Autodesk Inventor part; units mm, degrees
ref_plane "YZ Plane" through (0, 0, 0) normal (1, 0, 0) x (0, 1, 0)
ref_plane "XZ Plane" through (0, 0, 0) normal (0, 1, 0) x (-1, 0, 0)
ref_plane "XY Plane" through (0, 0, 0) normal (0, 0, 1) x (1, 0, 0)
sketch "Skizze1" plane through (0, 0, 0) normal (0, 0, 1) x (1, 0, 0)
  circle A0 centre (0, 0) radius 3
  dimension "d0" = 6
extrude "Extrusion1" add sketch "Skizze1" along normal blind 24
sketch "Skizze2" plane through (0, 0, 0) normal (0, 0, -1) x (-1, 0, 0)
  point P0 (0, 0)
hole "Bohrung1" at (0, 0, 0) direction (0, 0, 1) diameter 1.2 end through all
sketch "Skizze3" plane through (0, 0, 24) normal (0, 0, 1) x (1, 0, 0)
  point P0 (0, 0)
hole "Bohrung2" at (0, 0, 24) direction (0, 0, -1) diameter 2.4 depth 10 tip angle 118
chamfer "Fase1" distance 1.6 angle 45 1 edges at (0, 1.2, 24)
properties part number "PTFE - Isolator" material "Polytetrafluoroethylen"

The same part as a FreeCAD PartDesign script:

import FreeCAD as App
import Part
import Sketcher
Q = App.Units.Quantity


def edges_at(feature, points):
    """Names of the edges that pass closest to the given points."""
    edges = feature.Shape.Edges
    near = lambda p: min(range(len(edges)), key=lambda i: edges[i].distToShape(Part.Vertex(*p))[0])
    return sorted({f"Edge{near(p) + 1}" for p in points})

doc = App.newDocument("Part")
params = doc.addObject("Spreadsheet::Sheet", "Params")
for row, (alias, value) in enumerate([
    ("sketch1_diameter", "6 mm"),
    ("pad1_length", "24 mm"),
    ("sketch2_diameter", "1.2 mm"),
    ("hole_diameter", "1.2 mm"),
    ("sketch3_diameter", "2.4 mm"),
    ("hole2_diameter", "2.4 mm"),
    ("hole2_depth", "10 mm"),
    ("chamfer_size", "1.6 mm"),
], start=1):
    params.set(f"A{row}", alias)
    params.set(f"B{row}", "=" + value)
    params.setAlias(f"B{row}", alias)

body = doc.addObject("PartDesign::Body", "Body")

# Sketch on XY plane
sketch1 = body.newObject("Sketcher::SketchObject", "Sketch")
sketch1.AttachmentSupport = (doc.getObject("XY_Plane"), [""])
sketch1.MapMode = "FlatFace"
sketch1.addGeometry(Part.Circle(App.Vector(0, 0, 0), App.Vector(0, 0, 1), 3), False)
sketch1.addConstraint(Sketcher.Constraint("Coincident", 0, 3, -1, 1))
sketch1.addConstraint(Sketcher.Constraint("Diameter", 0, Q("6 mm")))
sketch1.setExpression("Constraints[1]", "Params.sketch1_diameter")
pad1 = body.newObject("PartDesign::Pad", "Pad")
pad1.Profile = sketch1
pad1.setExpression("Length", "Params.pad1_length")

# Sketch on XY plane
sketch2 = body.newObject("Sketcher::SketchObject", "Sketch001")
sketch2.AttachmentSupport = (doc.getObject("XY_Plane"), [""])
sketch2.MapMode = "FlatFace"
sketch2.addGeometry(Part.Circle(App.Vector(0, 0, 0), App.Vector(0, 0, 1), 0.6), False)
sketch2.addConstraint(Sketcher.Constraint("Coincident", 0, 3, -1, 1))
sketch2.addConstraint(Sketcher.Constraint("Diameter", 0, Q("1.2 mm")))
sketch2.setExpression("Constraints[1]", "Params.sketch2_diameter")
doc.recompute()
hole = body.newObject("PartDesign::Hole", "Hole")
hole.Profile = sketch2
hole.ThreadType = "None"
hole.setExpression("Diameter", "Params.hole_diameter")
hole.DepthType = "ThroughAll"
hole.Reversed = True

# Sketch on XY plane
sketch3 = body.newObject("Sketcher::SketchObject", "Sketch002")
sketch3.AttachmentSupport = (doc.getObject("XY_Plane"), [""])
sketch3.MapMode = "FlatFace"
sketch3.AttachmentOffset = App.Placement(App.Vector(0, 0, 24), App.Rotation())
sketch3.addGeometry(Part.Circle(App.Vector(0, 0, 0), App.Vector(0, 0, 1), 1.2), False)
sketch3.addConstraint(Sketcher.Constraint("Coincident", 0, 3, -1, 1))
sketch3.addConstraint(Sketcher.Constraint("Diameter", 0, Q("2.4 mm")))
sketch3.setExpression("Constraints[1]", "Params.sketch3_diameter")
doc.recompute()
hole2 = body.newObject("PartDesign::Hole", "Hole001")
hole2.Profile = sketch3
hole2.ThreadType = "None"
hole2.setExpression("Diameter", "Params.hole2_diameter")
hole2.DepthType = "Dimension"
hole2.setExpression("Depth", "Params.hole2_depth")
hole2.DrillPoint = "Angled"
hole2.DrillPointAngle = 118
doc.recompute()

chamfer = body.newObject("PartDesign::Chamfer", "Chamfer")
chamfer.Base = (hole2, edges_at(hole2, [(0, 1.2, 24)]))
chamfer.setExpression("Size", "Params.chamfer_size")

doc.recompute()
